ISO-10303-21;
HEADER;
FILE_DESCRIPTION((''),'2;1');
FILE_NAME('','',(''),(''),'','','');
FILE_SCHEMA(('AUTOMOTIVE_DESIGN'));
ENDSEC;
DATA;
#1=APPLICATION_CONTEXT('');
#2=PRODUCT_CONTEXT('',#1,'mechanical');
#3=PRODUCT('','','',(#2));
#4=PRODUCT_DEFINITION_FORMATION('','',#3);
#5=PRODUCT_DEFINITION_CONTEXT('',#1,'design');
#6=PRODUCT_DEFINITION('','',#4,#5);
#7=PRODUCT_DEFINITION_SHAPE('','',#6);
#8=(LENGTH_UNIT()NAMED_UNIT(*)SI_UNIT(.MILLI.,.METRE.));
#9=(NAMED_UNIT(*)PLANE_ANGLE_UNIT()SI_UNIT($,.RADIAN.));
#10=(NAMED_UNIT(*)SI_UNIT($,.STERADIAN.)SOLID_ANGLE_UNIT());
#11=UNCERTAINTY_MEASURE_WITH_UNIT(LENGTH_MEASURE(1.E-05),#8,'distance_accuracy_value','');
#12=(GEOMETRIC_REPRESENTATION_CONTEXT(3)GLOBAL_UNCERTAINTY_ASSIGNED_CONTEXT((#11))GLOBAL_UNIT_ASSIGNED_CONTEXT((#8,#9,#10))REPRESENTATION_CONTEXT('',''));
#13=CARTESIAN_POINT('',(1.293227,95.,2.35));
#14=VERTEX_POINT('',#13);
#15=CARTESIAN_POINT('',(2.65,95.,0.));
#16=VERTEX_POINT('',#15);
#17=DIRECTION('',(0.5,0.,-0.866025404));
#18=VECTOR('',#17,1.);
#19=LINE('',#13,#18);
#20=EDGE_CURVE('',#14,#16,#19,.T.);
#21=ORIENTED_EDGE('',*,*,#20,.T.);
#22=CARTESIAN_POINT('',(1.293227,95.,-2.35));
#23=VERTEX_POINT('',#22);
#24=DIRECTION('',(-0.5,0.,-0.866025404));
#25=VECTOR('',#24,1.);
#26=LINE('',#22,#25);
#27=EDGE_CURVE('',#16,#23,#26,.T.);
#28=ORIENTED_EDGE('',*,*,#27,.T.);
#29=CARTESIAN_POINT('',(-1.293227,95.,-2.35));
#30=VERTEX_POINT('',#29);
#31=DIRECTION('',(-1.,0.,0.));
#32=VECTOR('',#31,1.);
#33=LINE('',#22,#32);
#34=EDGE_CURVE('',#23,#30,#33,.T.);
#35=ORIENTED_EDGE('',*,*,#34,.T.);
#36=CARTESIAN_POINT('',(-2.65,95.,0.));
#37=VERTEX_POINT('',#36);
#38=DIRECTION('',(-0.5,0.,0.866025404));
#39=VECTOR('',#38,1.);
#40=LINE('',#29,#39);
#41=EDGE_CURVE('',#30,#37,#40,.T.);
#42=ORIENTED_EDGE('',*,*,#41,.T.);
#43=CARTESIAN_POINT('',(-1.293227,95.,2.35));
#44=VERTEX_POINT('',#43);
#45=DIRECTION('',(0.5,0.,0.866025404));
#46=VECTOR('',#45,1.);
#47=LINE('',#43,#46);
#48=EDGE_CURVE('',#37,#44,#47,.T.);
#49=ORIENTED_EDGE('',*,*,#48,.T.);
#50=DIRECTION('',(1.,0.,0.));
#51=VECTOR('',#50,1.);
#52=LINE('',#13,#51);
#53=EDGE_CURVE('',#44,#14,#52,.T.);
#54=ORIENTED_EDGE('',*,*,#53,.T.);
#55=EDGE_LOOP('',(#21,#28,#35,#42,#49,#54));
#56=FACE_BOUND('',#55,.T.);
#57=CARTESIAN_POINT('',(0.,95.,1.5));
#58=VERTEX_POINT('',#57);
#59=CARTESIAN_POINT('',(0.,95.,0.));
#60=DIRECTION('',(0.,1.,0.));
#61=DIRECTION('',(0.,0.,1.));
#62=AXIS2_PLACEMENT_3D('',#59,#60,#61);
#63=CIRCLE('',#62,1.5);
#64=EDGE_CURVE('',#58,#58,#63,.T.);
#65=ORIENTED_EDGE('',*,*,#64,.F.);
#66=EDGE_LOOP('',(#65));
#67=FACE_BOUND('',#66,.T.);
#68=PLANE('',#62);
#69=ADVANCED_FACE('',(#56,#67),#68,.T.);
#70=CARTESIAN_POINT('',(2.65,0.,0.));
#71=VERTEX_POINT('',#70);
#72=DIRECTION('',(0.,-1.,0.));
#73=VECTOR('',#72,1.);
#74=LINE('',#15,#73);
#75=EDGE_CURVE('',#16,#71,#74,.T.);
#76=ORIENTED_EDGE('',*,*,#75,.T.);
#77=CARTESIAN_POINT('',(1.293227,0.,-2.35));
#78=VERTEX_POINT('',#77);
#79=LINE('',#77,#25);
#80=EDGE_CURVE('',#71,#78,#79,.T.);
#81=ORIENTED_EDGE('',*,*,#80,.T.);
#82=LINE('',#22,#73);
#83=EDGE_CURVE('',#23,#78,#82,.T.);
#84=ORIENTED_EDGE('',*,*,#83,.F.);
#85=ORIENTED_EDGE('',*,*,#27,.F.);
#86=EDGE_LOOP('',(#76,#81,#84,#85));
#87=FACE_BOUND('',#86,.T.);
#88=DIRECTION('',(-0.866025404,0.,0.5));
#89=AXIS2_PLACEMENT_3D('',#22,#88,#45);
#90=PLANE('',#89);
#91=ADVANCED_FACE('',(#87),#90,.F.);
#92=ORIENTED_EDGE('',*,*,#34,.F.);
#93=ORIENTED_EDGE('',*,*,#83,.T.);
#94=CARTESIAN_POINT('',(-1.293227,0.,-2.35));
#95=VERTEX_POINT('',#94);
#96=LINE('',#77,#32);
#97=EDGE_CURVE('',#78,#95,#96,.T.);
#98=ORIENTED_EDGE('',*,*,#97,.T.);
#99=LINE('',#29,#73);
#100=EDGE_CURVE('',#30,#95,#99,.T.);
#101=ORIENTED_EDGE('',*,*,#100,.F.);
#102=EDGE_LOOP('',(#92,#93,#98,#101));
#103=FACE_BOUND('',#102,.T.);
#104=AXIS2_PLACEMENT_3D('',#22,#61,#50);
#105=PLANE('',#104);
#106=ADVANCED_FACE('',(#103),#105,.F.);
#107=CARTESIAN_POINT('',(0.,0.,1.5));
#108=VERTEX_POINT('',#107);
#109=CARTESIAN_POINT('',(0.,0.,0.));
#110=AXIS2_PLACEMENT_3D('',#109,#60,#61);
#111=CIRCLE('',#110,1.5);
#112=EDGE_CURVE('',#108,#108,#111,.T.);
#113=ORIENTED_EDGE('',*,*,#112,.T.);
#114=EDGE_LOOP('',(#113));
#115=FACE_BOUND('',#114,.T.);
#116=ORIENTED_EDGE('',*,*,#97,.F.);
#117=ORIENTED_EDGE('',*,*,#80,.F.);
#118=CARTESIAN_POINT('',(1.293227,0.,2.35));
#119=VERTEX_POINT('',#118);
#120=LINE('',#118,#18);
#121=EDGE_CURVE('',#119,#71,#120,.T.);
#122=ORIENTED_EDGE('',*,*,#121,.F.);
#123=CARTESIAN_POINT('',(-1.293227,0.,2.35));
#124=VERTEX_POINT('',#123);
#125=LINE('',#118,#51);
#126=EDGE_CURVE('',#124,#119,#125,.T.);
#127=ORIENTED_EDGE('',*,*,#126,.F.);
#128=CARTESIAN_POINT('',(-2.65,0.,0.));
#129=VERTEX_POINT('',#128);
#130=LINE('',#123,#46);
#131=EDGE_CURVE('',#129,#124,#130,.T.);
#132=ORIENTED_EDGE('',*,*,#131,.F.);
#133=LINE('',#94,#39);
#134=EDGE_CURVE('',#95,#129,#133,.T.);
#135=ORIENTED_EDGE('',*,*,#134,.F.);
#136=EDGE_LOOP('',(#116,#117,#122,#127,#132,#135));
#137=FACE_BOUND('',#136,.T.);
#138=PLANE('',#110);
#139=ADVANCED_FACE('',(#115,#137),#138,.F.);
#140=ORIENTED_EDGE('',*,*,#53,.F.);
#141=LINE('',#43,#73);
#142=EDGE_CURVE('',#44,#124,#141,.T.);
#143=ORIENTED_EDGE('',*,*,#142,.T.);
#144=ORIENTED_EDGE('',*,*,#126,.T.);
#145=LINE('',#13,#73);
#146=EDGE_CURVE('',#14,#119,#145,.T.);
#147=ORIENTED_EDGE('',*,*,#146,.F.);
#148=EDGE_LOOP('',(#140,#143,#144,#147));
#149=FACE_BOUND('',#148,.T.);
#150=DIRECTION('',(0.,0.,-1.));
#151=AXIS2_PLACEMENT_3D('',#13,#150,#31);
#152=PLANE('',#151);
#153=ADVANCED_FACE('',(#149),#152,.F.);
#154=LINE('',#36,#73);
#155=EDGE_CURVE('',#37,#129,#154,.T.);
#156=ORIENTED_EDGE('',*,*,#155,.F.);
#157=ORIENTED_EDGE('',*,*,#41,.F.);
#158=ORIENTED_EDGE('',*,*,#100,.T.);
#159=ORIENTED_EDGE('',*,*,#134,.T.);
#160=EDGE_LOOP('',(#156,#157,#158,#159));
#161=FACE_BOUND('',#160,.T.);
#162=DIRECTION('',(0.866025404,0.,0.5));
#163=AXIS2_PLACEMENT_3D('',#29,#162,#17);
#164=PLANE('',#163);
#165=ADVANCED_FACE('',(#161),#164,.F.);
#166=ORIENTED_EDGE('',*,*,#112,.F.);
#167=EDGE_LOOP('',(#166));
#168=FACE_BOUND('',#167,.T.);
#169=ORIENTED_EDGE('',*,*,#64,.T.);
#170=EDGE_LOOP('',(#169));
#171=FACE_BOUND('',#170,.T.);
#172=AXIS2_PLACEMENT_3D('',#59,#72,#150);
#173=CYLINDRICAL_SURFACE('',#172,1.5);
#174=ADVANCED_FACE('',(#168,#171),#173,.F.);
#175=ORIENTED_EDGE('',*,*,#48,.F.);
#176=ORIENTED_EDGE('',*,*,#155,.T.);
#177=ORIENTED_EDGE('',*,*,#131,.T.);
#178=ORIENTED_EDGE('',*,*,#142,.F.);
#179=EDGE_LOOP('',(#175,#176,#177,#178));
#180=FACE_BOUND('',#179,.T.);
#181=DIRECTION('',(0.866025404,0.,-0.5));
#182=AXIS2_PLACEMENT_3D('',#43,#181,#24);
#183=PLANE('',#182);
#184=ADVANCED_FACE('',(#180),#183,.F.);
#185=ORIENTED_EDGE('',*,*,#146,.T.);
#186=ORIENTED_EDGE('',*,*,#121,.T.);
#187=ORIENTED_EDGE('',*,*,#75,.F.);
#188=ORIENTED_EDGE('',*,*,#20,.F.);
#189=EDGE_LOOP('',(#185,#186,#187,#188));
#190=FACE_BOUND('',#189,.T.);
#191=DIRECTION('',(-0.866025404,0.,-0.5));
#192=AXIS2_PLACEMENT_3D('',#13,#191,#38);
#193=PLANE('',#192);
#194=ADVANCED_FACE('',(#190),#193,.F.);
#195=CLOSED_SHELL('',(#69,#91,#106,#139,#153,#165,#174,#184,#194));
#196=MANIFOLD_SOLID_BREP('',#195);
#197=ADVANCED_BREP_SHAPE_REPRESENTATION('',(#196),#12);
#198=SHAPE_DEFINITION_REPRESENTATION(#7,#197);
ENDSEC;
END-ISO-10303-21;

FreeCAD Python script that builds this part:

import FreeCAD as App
import Part
import Sketcher
from FreeCAD import Vector
Q = App.Units.Quantity


def add_polygon(sketch, points):
    """Adds a closed chain of lines whose ends are joined by coincident constraints."""
    first, n = sketch.GeometryCount, len(points)
    for a, b in zip(points, points[1:] + points[:1]):
        sketch.addGeometry(Part.LineSegment(App.Vector(*a, 0), App.Vector(*b, 0)), False)
    for i in range(n):
        sketch.addConstraint(Sketcher.Constraint("Coincident", first + i, 2, first + (i + 1) % n, 1))

doc = App.newDocument("Part")
body = doc.addObject("PartDesign::Body", "Body")

sketch1 = body.newObject("Sketcher::SketchObject", "Sketch")
sketch1.AttachmentSupport = (doc.getObject("XZ_Plane"), [""])
sketch1.MapMode = "FlatFace"
add_polygon(sketch1, [(1.3, -2.4), (-1.3, -2.4), (-2.6, 0), (-1.3, 2.4), (1.3, 2.4), (2.6, 0)])
sketch1.addGeometry(Part.Circle(Vector(0, 0, 0), Vector(0, 0, 1), 1.5), False)
sketch1.addConstraint([
    Sketcher.Constraint("Horizontal", 0),
    Sketcher.Constraint("Horizontal", 3),
    Sketcher.Constraint("Coincident", 6, 3, -1, 1),
    Sketcher.Constraint("Symmetric", 0, 2, 3, 2, -1, 1),
    Sketcher.Constraint("Symmetric", 1, 2, 4, 2, -1, 1),
    Sketcher.Constraint("PointOnObject", 1, 2, -1),
    Sketcher.Constraint("Parallel", 2, 5),
    Sketcher.Constraint("Vertical", 0, 2, 2, 2),
    Sketcher.Constraint("Diameter", 6, 3.0),
    Sketcher.Constraint("Angle", 1, Q("120 deg")),
    Sketcher.Constraint("DistanceY", 0, 2, 2, 2, 4.7),
    Sketcher.Constraint("DistanceX", 1, 2, 4, 2, 5.3),
])
pad1 = body.newObject("PartDesign::Pad", "Pad")
pad1.Profile = sketch1
pad1.Length = 95
pad1.Reversed = True

doc.recompute()
